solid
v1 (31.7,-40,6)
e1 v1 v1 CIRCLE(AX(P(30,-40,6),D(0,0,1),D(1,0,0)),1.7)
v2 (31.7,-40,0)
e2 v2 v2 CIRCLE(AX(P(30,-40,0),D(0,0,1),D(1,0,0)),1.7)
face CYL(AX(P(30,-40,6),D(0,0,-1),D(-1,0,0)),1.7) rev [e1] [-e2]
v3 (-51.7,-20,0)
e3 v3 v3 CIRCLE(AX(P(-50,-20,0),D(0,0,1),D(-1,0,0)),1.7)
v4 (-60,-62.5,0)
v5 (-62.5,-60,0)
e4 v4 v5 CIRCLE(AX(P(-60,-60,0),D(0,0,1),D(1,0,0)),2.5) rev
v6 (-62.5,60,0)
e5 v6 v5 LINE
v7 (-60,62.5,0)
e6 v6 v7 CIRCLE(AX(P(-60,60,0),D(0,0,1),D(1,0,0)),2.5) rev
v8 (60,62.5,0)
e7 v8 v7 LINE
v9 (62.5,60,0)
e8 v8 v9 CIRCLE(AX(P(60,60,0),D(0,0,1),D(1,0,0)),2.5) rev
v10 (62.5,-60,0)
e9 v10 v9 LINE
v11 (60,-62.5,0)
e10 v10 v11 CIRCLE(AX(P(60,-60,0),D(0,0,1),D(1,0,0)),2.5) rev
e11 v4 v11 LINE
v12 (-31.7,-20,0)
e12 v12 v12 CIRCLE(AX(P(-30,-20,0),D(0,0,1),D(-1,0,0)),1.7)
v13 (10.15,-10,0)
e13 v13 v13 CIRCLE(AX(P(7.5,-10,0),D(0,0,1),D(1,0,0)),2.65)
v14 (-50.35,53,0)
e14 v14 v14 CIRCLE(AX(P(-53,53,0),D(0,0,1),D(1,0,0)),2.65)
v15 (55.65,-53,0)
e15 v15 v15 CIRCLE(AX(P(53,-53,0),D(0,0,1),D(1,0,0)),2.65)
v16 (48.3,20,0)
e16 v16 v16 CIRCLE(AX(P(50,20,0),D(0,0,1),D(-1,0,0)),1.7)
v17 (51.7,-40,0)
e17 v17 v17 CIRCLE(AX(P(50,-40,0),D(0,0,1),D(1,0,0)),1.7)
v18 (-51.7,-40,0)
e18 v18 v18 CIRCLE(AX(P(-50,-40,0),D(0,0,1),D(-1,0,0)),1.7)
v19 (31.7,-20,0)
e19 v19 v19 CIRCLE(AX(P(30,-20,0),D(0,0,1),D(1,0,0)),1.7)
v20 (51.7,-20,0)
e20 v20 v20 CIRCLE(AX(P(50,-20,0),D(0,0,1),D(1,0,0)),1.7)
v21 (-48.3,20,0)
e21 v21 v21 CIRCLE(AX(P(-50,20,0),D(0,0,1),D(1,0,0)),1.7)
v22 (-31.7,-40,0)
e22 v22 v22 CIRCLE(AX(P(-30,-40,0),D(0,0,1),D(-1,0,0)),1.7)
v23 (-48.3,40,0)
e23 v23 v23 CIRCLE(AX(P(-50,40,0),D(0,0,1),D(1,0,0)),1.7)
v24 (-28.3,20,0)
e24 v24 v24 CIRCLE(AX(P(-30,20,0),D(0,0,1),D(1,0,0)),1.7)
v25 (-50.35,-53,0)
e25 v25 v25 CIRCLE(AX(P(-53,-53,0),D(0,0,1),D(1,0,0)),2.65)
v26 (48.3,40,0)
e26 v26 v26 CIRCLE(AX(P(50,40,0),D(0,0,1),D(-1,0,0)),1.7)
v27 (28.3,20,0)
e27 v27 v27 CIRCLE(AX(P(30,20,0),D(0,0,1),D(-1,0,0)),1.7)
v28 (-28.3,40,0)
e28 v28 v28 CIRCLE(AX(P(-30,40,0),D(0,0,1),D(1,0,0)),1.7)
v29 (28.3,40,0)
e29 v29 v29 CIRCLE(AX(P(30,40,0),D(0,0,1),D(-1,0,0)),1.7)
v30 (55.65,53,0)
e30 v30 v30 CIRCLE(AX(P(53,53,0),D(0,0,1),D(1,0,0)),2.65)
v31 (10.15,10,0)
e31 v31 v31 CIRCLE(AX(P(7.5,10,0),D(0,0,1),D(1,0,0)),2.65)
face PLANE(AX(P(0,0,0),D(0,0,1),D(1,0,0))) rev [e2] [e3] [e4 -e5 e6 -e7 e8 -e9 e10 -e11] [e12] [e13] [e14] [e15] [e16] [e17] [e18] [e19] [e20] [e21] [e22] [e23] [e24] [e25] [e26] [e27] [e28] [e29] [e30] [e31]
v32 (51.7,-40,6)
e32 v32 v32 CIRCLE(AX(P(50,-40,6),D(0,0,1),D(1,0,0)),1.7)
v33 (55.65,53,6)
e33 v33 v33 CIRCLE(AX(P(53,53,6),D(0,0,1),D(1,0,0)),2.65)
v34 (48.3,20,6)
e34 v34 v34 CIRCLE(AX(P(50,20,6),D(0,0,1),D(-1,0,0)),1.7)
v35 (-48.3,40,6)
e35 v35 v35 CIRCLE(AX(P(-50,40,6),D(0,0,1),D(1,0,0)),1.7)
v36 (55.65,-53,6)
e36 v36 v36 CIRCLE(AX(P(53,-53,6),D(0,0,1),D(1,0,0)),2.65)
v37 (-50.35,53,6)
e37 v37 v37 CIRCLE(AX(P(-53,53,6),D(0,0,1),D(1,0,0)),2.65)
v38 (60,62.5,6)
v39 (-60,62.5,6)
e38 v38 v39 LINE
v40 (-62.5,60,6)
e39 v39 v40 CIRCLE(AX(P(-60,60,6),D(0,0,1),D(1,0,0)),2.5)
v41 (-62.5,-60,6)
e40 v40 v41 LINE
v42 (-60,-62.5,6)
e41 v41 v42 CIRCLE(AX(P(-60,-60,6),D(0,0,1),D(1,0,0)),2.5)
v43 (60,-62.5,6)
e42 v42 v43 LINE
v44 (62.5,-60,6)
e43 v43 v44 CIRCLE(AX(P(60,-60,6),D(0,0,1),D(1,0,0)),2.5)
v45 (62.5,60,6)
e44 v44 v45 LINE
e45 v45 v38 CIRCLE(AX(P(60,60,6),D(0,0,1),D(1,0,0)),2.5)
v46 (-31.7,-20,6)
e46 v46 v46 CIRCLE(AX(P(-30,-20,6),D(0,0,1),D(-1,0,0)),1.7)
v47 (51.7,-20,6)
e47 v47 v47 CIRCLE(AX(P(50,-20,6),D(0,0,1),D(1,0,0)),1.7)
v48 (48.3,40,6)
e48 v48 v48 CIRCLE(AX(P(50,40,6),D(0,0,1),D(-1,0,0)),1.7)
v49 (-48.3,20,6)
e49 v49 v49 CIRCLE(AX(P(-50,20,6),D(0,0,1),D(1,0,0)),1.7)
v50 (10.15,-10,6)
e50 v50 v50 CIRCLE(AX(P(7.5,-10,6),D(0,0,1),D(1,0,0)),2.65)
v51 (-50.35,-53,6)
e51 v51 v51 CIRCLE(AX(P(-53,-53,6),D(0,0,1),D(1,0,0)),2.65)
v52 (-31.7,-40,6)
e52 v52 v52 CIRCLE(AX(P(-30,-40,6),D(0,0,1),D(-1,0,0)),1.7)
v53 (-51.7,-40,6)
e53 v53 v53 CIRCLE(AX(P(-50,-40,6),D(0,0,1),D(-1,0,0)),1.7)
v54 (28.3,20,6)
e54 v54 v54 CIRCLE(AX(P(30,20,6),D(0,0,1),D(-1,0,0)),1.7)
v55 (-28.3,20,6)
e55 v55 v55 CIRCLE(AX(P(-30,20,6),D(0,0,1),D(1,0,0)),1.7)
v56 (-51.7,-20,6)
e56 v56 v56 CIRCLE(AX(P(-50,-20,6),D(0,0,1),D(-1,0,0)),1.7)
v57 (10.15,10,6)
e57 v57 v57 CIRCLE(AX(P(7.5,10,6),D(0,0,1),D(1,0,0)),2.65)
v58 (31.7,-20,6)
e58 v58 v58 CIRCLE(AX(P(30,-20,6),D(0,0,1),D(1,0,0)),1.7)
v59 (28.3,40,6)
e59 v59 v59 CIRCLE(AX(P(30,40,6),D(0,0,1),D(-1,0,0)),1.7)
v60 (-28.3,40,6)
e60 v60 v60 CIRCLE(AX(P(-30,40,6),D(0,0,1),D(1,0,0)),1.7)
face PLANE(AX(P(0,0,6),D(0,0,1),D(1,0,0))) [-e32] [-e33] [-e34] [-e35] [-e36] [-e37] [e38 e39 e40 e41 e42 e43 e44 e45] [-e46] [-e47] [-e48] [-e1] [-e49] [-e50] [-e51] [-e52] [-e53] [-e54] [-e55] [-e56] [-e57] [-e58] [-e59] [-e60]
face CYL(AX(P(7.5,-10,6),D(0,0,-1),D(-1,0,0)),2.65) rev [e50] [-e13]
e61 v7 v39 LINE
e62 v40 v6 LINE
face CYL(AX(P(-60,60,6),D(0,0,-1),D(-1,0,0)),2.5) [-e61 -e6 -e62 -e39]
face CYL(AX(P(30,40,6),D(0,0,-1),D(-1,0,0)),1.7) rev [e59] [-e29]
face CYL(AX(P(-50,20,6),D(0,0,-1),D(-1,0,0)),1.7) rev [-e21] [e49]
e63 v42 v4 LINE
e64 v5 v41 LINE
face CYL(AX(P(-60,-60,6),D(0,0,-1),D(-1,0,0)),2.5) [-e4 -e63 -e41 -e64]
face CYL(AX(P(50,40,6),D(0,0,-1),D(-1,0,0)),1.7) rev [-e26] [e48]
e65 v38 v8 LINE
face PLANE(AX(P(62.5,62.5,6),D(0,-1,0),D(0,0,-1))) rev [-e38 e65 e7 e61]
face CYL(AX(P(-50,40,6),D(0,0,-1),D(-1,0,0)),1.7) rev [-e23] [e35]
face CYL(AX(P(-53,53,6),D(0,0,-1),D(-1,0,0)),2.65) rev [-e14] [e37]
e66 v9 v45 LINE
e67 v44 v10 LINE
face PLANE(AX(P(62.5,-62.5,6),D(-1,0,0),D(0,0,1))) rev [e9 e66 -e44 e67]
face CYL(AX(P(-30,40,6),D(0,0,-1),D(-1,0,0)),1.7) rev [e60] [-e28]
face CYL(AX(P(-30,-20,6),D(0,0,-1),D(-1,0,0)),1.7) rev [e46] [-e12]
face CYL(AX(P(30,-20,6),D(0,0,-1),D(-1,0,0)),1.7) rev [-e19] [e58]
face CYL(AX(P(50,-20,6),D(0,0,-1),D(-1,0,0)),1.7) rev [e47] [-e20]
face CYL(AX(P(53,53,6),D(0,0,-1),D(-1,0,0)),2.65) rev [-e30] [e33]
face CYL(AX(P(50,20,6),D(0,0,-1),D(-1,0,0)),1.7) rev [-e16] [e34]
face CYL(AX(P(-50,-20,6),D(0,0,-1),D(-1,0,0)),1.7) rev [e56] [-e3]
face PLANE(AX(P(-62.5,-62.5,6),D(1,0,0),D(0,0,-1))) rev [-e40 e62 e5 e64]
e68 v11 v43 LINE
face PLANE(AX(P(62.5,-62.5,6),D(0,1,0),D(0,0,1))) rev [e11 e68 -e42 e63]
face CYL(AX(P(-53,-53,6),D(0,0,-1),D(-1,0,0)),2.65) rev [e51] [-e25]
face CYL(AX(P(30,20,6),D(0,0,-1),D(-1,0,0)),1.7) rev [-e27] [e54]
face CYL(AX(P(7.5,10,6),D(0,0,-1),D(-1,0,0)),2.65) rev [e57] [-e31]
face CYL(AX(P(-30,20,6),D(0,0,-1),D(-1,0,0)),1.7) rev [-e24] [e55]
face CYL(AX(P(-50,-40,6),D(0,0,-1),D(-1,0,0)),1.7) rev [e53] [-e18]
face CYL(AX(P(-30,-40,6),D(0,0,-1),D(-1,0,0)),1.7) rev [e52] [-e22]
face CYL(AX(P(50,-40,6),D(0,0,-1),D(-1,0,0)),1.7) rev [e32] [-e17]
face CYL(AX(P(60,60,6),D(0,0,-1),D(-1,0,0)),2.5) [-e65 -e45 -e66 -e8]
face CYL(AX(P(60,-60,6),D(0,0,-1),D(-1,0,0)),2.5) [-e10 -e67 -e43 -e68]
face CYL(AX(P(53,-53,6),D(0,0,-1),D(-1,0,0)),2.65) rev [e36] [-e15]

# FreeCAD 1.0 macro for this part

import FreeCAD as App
import Part
import Sketcher
from FreeCAD import Vector


def edges_at(feature, points):
    """Names of the edges that pass closest to the given points."""
    edges = feature.Shape.Edges
    near = lambda p: min(range(len(edges)), key=lambda i: edges[i].distToShape(Part.Vertex(*p))[0])
    return sorted({f"Edge{near(p) + 1}" for p in points})

doc = App.newDocument("Part")
params = doc.addObject("Spreadsheet::Sheet", "Params")
for row, (alias, value) in enumerate([
    ("sketch1_diameter", "5.3 mm"),
    ("sketch1_diameter2", "3.4 mm"),
    ("sketch1_width", "125 mm"),
    ("pad1_length", "6 mm"),
    ("fillet_radius", "2.5 mm"),
], start=1):
    params.set(f"A{row}", alias)
    params.set(f"B{row}", "=" + value)
    params.setAlias(f"B{row}", alias)

body = doc.addObject("PartDesign::Body", "Body")

# Sketch on XY plane
sketch1 = body.newObject("Sketcher::SketchObject", "Sketch")
sketch1.AttachmentSupport = (doc.getObject("XY_Plane"), [""])
sketch1.MapMode = "FlatFace"
sketch1.addGeometry(Part.LineSegment(Vector(-62.5, 62.5, 0), Vector(-62.5, -62.5, 0)), False)
sketch1.addGeometry(Part.LineSegment(Vector(-62.5, -62.5, 0), Vector(62.5, -62.5, 0)), False)
sketch1.addGeometry(Part.LineSegment(Vector(62.5, -62.5, 0), Vector(62.5, 62.5, 0)), False)
sketch1.addGeometry(Part.LineSegment(Vector(62.5, 62.5, 0), Vector(-62.5, 62.5, 0)), False)
sketch1.addGeometry(Part.Circle(Vector(-53, -53, 0), Vector(0, 0, 1), 2.6), False)
sketch1.addGeometry(Part.Circle(Vector(-50, -40, 0), Vector(0, 0, 1), 1.7), False)
sketch1.addGeometry(Part.Circle(Vector(-30, -40, 0), Vector(0, 0, 1), 1.7), False)
sketch1.addGeometry(Part.Circle(Vector(-50, -20, 0), Vector(0, 0, 1), 1.7), False)
sketch1.addGeometry(Part.Circle(Vector(-30, -20, 0), Vector(0, 0, 1), 1.7), False)
sketch1.addGeometry(Part.Circle(Vector(53, -53, 0), Vector(0, 0, 1), 2.6), False)
sketch1.addGeometry(Part.Circle(Vector(30, -40, 0), Vector(0, 0, 1), 1.7), False)
sketch1.addGeometry(Part.Circle(Vector(50, -40, 0), Vector(0, 0, 1), 1.7), False)
sketch1.addGeometry(Part.Circle(Vector(7.5, -10, 0), Vector(0, 0, 1), 2.6), False)
sketch1.addGeometry(Part.Circle(Vector(30, -20, 0), Vector(0, 0, 1), 1.7), False)
sketch1.addGeometry(Part.Circle(Vector(50, -20, 0), Vector(0, 0, 1), 1.7), False)
sketch1.addGeometry(Part.Circle(Vector(-50, 20, 0), Vector(0, 0, 1), 1.7), False)
sketch1.addGeometry(Part.Circle(Vector(-30, 20, 0), Vector(0, 0, 1), 1.7), False)
sketch1.addGeometry(Part.Circle(Vector(-50, 40, 0), Vector(0, 0, 1), 1.7), False)
sketch1.addGeometry(Part.Circle(Vector(-30, 40, 0), Vector(0, 0, 1), 1.7), False)
sketch1.addGeometry(Part.Circle(Vector(-53, 53, 0), Vector(0, 0, 1), 2.6), False)
sketch1.addGeometry(Part.Circle(Vector(7.5, 10, 0), Vector(0, 0, 1), 2.6), False)
sketch1.addGeometry(Part.Circle(Vector(30, 20, 0), Vector(0, 0, 1), 1.7), False)
sketch1.addGeometry(Part.Circle(Vector(50, 20, 0), Vector(0, 0, 1), 1.7), False)
sketch1.addGeometry(Part.Circle(Vector(30, 40, 0), Vector(0, 0, 1), 1.7), False)
sketch1.addGeometry(Part.Circle(Vector(50, 40, 0), Vector(0, 0, 1), 1.7), False)
sketch1.addGeometry(Part.Circle(Vector(53, 53, 0), Vector(0, 0, 1), 2.6), False)
sketch1.addConstraint(Sketcher.Constraint("Coincident", 0, 2, 1, 1))
sketch1.addConstraint(Sketcher.Constraint("Coincident", 1, 2, 2, 1))
sketch1.addConstraint(Sketcher.Constraint("Coincident", 2, 2, 3, 1))
sketch1.addConstraint(Sketcher.Constraint("Coincident", 3, 2, 0, 1))
sketch1.addConstraint(Sketcher.Constraint("Vertical", 0))
sketch1.addConstraint(Sketcher.Constraint("Horizontal", 1))
sketch1.addConstraint(Sketcher.Constraint("Vertical", 2))
sketch1.addConstraint(Sketcher.Constraint("Horizontal", 3))
sketch1.addConstraint(Sketcher.Constraint("Equal", 5, 6))
sketch1.addConstraint(Sketcher.Constraint("Equal", 6, 7))
sketch1.addConstraint(Sketcher.Constraint("Equal", 7, 8))
sketch1.addConstraint(Sketcher.Constraint("Equal", 4, 9))
sketch1.addConstraint(Sketcher.Constraint("Equal", 8, 10))
sketch1.addConstraint(Sketcher.Constraint("Equal", 10, 11))
sketch1.addConstraint(Sketcher.Constraint("Equal", 9, 12))
sketch1.addConstraint(Sketcher.Constraint("Equal", 11, 13))
sketch1.addConstraint(Sketcher.Constraint("Equal", 13, 14))
sketch1.addConstraint(Sketcher.Constraint("Equal", 14, 15))
sketch1.addConstraint(Sketcher.Constraint("Equal", 15, 16))
sketch1.addConstraint(Sketcher.Constraint("Equal", 16, 17))
sketch1.addConstraint(Sketcher.Constraint("Equal", 17, 18))
sketch1.addConstraint(Sketcher.Constraint("Equal", 12, 19))
sketch1.addConstraint(Sketcher.Constraint("Equal", 19, 20))
sketch1.addConstraint(Sketcher.Constraint("Equal", 18, 21))
sketch1.addConstraint(Sketcher.Constraint("Equal", 21, 22))
sketch1.addConstraint(Sketcher.Constraint("Equal", 22, 23))
sketch1.addConstraint(Sketcher.Constraint("Equal", 23, 24))
sketch1.addConstraint(Sketcher.Constraint("Equal", 20, 25))
sketch1.addConstraint(Sketcher.Constraint("Symmetric", 14, 3, 15, 3, -1, 1))
sketch1.addConstraint(Sketcher.Constraint("Symmetric", 13, 3, 16, 3, -1, 1))
sketch1.addConstraint(Sketcher.Constraint("Symmetric", 11, 3, 17, 3, -1, 1))
sketch1.addConstraint(Sketcher.Constraint("Symmetric", 10, 3, 18, 3, -1, 1))
sketch1.addConstraint(Sketcher.Constraint("Symmetric", 9, 3, 19, 3, -1, 1))
sketch1.addConstraint(Sketcher.Constraint("Symmetric", 8, 3, 21, 3, -1, 1))
sketch1.addConstraint(Sketcher.Constraint("Symmetric", 7, 3, 22, 3, -1, 1))
sketch1.addConstraint(Sketcher.Constraint("Symmetric", 6, 3, 23, 3, -1, 1))
sketch1.addConstraint(Sketcher.Constraint("Symmetric", 5, 3, 24, 3, -1, 1))
sketch1.addConstraint(Sketcher.Constraint("Symmetric", 4, 3, 25, 3, -1, 1))
sketch1.addConstraint(Sketcher.Constraint("Symmetric", 0, 2, 2, 2, -1, 1))
sketch1.addConstraint(Sketcher.Constraint("Symmetric", 4, 3, 9, 3, -2))
sketch1.addConstraint(Sketcher.Constraint("Symmetric", 6, 3, 10, 3, -2))
sketch1.addConstraint(Sketcher.Constraint("Symmetric", 5, 3, 11, 3, -2))
sketch1.addConstraint(Sketcher.Constraint("Symmetric", 8, 3, 13, 3, -2))
sketch1.addConstraint(Sketcher.Constraint("Symmetric", 7, 3, 14, 3, -2))
sketch1.addConstraint(Sketcher.Constraint("Symmetric", 12, 3, 20, 3, -1))
sketch1.addConstraint(Sketcher.Constraint("Horizontal", 5, 3, 6, 3))
sketch1.addConstraint(Sketcher.Constraint("Horizontal", 7, 3, 8, 3))
sketch1.addConstraint(Sketcher.Constraint("Vertical", 5, 3, 7, 3))
sketch1.addConstraint(Sketcher.Constraint("Vertical", 6, 3, 8, 3))
sketch1.addConstraint(Sketcher.Constraint("Equal", 3, 0))
sketch1.addConstraint(Sketcher.Constraint("Diameter", 4, 5.3))
sketch1.addConstraint(Sketcher.Constraint("Diameter", 5, 3.4))
sketch1.addConstraint(Sketcher.Constraint("DistanceX", 1, 1, 1, 2, 125.0))
sketch1.addConstraint(Sketcher.Constraint("DistanceX", 4, 3, -1, 1, 53.0))
sketch1.addConstraint(Sketcher.Constraint("DistanceY", 4, 3, -1, 1, 53.0))
sketch1.addConstraint(Sketcher.Constraint("DistanceX", 5, 3, -1, 1, 50.0))
sketch1.addConstraint(Sketcher.Constraint("DistanceY", 5, 3, -1, 1, 40.0))
sketch1.addConstraint(Sketcher.Constraint("DistanceX", 6, 3, -1, 1, 30.0))
sketch1.addConstraint(Sketcher.Constraint("DistanceY", 7, 3, -1, 1, 20.0))
sketch1.addConstraint(Sketcher.Constraint("DistanceY", 12, 3, -1, 1, 10.0))
sketch1.addConstraint(Sketcher.Constraint("DistanceX", -1, 1, 12, 3, 7.5))
sketch1.setExpression("Constraints[50]", "Params.sketch1_diameter")
sketch1.setExpression("Constraints[51]", "Params.sketch1_diameter2")
sketch1.setExpression("Constraints[52]", "Params.sketch1_width")
pad1 = body.newObject("PartDesign::Pad", "Pad")
pad1.Profile = sketch1
pad1.setExpression("Length", "Params.pad1_length")
doc.recompute()

fillet = body.newObject("PartDesign::Fillet", "Fillet")
fillet.Base = (pad1, edges_at(pad1, [
    (-62.5, 62.5, 3),
    (62.5, 62.5, 3),
    (62.5, -62.5, 3),
    (-62.5, -62.5, 3),
]))
fillet.setExpression("Radius", "Params.fillet_radius")

doc.recompute()
